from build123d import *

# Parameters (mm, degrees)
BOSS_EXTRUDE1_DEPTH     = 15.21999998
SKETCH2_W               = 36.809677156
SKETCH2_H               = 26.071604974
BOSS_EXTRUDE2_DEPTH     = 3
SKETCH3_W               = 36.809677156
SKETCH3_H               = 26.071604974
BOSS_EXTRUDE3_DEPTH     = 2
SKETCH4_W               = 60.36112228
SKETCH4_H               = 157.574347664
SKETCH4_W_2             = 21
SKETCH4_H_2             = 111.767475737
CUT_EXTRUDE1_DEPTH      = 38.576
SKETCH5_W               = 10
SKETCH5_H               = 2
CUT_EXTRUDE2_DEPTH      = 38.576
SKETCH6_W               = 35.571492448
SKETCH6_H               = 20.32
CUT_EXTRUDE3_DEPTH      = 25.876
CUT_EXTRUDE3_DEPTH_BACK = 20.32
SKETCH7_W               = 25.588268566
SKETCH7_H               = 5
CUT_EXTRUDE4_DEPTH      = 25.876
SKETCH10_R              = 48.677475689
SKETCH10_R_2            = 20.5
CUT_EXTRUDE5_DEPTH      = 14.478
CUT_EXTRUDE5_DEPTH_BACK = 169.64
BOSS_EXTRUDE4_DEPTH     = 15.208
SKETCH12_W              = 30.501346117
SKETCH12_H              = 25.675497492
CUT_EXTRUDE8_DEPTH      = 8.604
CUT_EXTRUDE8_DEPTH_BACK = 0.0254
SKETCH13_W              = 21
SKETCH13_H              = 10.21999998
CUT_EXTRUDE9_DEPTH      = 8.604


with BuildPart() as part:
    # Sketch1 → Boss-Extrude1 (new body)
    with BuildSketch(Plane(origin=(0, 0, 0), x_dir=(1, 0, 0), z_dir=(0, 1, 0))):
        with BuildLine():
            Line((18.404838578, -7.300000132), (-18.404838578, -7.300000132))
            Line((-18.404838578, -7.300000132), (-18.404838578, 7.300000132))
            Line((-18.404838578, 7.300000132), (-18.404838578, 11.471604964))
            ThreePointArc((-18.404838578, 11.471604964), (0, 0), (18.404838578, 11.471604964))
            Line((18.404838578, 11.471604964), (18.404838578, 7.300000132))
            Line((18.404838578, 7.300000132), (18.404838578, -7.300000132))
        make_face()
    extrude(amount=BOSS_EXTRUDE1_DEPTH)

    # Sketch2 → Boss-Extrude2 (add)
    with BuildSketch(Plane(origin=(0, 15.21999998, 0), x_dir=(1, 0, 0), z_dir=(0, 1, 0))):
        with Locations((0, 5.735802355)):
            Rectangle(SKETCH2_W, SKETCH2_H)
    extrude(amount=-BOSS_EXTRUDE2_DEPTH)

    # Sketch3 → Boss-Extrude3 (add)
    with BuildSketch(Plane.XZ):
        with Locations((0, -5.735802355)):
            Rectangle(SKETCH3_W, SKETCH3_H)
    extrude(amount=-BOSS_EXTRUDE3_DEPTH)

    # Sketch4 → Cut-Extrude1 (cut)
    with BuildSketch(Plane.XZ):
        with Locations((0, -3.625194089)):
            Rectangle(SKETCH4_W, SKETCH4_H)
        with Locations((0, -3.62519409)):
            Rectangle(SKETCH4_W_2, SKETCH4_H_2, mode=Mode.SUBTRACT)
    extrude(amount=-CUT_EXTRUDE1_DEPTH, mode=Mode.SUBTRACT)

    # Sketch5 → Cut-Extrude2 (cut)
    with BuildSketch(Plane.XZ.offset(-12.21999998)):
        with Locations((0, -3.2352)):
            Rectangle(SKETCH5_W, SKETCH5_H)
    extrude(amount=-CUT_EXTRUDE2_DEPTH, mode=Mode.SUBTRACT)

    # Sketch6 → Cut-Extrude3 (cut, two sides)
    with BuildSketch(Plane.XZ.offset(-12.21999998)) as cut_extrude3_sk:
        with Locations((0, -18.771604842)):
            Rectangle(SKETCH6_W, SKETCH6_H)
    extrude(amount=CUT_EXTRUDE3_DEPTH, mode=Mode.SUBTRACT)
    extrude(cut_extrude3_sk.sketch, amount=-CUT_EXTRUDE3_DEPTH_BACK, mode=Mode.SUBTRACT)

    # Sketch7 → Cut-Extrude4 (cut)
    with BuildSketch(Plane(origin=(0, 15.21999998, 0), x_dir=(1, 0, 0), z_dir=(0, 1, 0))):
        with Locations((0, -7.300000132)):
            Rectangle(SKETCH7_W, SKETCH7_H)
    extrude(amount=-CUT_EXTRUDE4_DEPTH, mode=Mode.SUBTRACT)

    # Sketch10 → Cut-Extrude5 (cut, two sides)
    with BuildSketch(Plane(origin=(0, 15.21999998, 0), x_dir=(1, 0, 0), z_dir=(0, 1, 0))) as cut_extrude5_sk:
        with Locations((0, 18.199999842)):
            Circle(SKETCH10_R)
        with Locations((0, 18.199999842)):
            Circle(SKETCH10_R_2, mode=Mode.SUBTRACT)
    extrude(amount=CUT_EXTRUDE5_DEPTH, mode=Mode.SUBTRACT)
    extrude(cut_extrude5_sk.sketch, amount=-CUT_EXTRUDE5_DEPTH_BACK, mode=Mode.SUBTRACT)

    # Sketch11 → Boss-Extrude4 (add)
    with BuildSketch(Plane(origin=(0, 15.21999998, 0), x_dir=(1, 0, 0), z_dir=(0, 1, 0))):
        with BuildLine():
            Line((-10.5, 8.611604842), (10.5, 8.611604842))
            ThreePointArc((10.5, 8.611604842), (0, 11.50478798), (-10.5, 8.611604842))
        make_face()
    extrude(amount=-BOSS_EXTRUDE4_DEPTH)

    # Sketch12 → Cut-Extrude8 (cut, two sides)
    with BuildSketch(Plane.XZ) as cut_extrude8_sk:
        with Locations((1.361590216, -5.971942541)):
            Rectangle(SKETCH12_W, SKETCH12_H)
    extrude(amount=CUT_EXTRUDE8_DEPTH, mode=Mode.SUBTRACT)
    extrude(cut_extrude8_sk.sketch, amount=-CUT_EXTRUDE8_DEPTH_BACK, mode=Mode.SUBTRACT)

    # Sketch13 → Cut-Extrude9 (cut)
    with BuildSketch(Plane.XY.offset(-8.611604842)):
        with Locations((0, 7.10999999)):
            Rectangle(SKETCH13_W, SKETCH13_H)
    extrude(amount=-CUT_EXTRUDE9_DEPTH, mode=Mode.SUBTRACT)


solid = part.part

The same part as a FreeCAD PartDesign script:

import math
import FreeCAD as App
import Part
import Sketcher


def add_polygon(sketch, points):
    """Adds a closed chain of lines whose ends are joined by coincident constraints."""
    first, n = sketch.GeometryCount, len(points)
    for a, b in zip(points, points[1:] + points[:1]):
        sketch.addGeometry(Part.LineSegment(App.Vector(*a, 0), App.Vector(*b, 0)), False)
    for i in range(n):
        sketch.addConstraint(Sketcher.Constraint("Coincident", first + i, 2, first + (i + 1) % n, 1))

doc = App.newDocument("Part")
params = doc.addObject("Spreadsheet::Sheet", "Params")
for row, (alias, value) in enumerate([
    ("sketch1_radius", "20.5 mm"),
    ("pad1_length", "15.22 mm"),
    ("pad2_length", "3 mm"),
    ("pad3_length", "2 mm"),
    ("sketch4_width", "21 mm"),
    ("pocket1_length", "38.576 mm"),
    ("sketch5_width", "10 mm"),
    ("sketch5_height", "2 mm"),
    ("pocket2_length", "38.576 mm"),
    ("sketch6_height", "20.32 mm"),
    ("sketch7_height", "5 mm"),
    ("pocket4_length", "25.876 mm"),
    ("sketch8_diameter", "41 mm"),
    ("sketch9_radius", "20.5 mm"),
    ("sketch9_width", "21 mm"),
    ("pad4_length", "15.208 mm"),
    ("pocket6_length", "8.604 mm"),
    ("pocket6_length2", "0.0254 mm"),
    ("sketch11_width", "21 mm"),
    ("sketch11_height", "10.22 mm"),
    ("pocket7_length", "8.604 mm"),
], start=1):
    params.set(f"A{row}", alias)
    params.set(f"B{row}", "=" + value)
    params.setAlias(f"B{row}", alias)

body = doc.addObject("PartDesign::Body", "Body")

# Sketch on XZ plane
sketch1 = body.newObject("Sketcher::SketchObject", "Sketch")
sketch1.AttachmentSupport = (doc.getObject("XZ_Plane"), [""])
sketch1.MapMode = "FlatFace"
sketch1.addGeometry([
    Part.LineSegment(App.Vector(-18, 7, 0), App.Vector(18, 7, 0)),
    Part.LineSegment(App.Vector(18, 7, 0), App.Vector(18, -11, 0)),
    Part.ArcOfCircle(Part.Circle(App.Vector(0, -20, 0), App.Vector(0, 0, 1), 20), math.radians(26), math.radians(154)),
    Part.LineSegment(App.Vector(-18, -11, 0), App.Vector(-18, 7, 0)),
], False)
sketch1.addConstraint([
    Sketcher.Constraint("Coincident", 0, 2, 1, 1),
    Sketcher.Constraint("Coincident", 1, 2, 2, 1),
    Sketcher.Constraint("Coincident", 2, 2, 3, 1),
    Sketcher.Constraint("Coincident", 3, 2, 0, 1),
    Sketcher.Constraint("Horizontal", 0),
    Sketcher.Constraint("Vertical", 1),
    Sketcher.Constraint("Vertical", 3),
    Sketcher.Constraint("Symmetric", 1, 2, 2, 2, -2),
    Sketcher.Constraint("Radius", 2, 20.5),
    Sketcher.Constraint("DistanceY", 2, 3, -1, 1, 20.5),
    Sketcher.Constraint("DistanceY", -1, 1, 0, 2, 7.3),
    Sketcher.Constraint("DistanceX", 0, 1, 0, 2, 36.809677),
])
sketch1.setExpression("Constraints[8]", "Params.sketch1_radius")
pad1 = body.newObject("PartDesign::Pad", "Pad")
pad1.Profile = sketch1
pad1.setExpression("Length", "Params.pad1_length")
pad1.Reversed = True

# Sketch on XZ plane
sketch2 = body.newObject("Sketcher::SketchObject", "Sketch001")
sketch2.AttachmentSupport = (doc.getObject("XZ_Plane"), [""])
sketch2.MapMode = "FlatFace"
sketch2.AttachmentOffset = App.Placement(App.Vector(0, 0, -15.22), App.Rotation())
add_polygon(sketch2, [(-18, -19), (-18, 7), (18, 7), (18, -19)])  # lines 0-3
sketch2.addConstraint([
    Sketcher.Constraint("Vertical", 0),
    Sketcher.Constraint("Horizontal", 1),
    Sketcher.Constraint("Vertical", 2),
    Sketcher.Constraint("Horizontal", 3),
    Sketcher.Constraint("DistanceY", -1, 1, 0, 2, 7.3),
    Sketcher.Constraint("DistanceX", 1, 1, 1, 2, 36.809677),
    Sketcher.Constraint("DistanceY", 0, 1, 0, 2, 26.071605),
    Sketcher.Constraint("DistanceX", 0, 2, -1, 1, 18.404839),
])
pad2 = body.newObject("PartDesign::Pad", "Pad001")
pad2.Profile = sketch2
pad2.setExpression("Length", "Params.pad2_length")

# Sketch on XZ plane
sketch3 = body.newObject("Sketcher::SketchObject", "Sketch002")
sketch3.AttachmentSupport = (doc.getObject("XZ_Plane"), [""])
sketch3.MapMode = "FlatFace"
add_polygon(sketch3, [(-18, 7), (-18, -19), (18, -19), (18, 7)])  # lines 0-3
sketch3.addConstraint([
    Sketcher.Constraint("Vertical", 0),
    Sketcher.Constraint("Horizontal", 1),
    Sketcher.Constraint("Vertical", 2),
    Sketcher.Constraint("Horizontal", 3),
    Sketcher.Constraint("DistanceY", -1, 1, 2, 2, 7.3),
    Sketcher.Constraint("DistanceX", 1, 1, 1, 2, 36.809677),
    Sketcher.Constraint("DistanceY", 0, 2, 0, 1, 26.071605),
    Sketcher.Constraint("DistanceX", 0, 2, -1, 1, 18.404839),
])
pad3 = body.newObject("PartDesign::Pad", "Pad002")
pad3.Profile = sketch3
pad3.setExpression("Length", "Params.pad3_length")
pad3.Reversed = True

# Sketch on XZ plane
sketch4 = body.newObject("Sketcher::SketchObject", "Sketch003")
sketch4.AttachmentSupport = (doc.getObject("XZ_Plane"), [""])
sketch4.MapMode = "FlatFace"
add_polygon(sketch4, [(-30, 75), (-30, -82), (30, -82), (30, 75)])  # lines 0-3
add_polygon(sketch4, [(10, -60), (-10, -60), (-10, 52), (10, 52)])  # lines 4-7
sketch4.addConstraint([
    Sketcher.Constraint("Vertical", 0),
    Sketcher.Constraint("Horizontal", 1),
    Sketcher.Constraint("Vertical", 2),
    Sketcher.Constraint("Horizontal", 3),
    Sketcher.Constraint("Horizontal", 4),
    Sketcher.Constraint("Vertical", 5),
    Sketcher.Constraint("Horizontal", 6),
    Sketcher.Constraint("Vertical", 7),
    Sketcher.Constraint("DistanceX", 4, 2, 4, 1, 21.0),
    Sketcher.Constraint("DistanceX", 4, 2, -1, 1, 10.5),
    Sketcher.Constraint("DistanceX", 1, 1, 1, 2, 60.361122),
    Sketcher.Constraint("DistanceY", 0, 2, 0, 1, 157.574348),
    Sketcher.Constraint("DistanceY", 5, 1, 5, 2, 111.767476),
    Sketcher.Constraint("DistanceX", 0, 2, -1, 1, 30.180561),
    Sketcher.Constraint("DistanceY", -1, 1, 2, 2, 75.16198),
    Sketcher.Constraint("DistanceY", 4, 2, -1, 1, 59.508932),
])
sketch4.setExpression("Constraints[16]", "Params.sketch4_width")
pocket1 = body.newObject("PartDesign::Pocket", "Pocket")
pocket1.Profile = sketch4
pocket1.setExpression("Length", "Params.pocket1_length")

# Sketch on XZ plane
sketch5 = body.newObject("Sketcher::SketchObject", "Sketch004")
sketch5.AttachmentSupport = (doc.getObject("XZ_Plane"), [""])
sketch5.MapMode = "FlatFace"
sketch5.AttachmentOffset = App.Placement(App.Vector(0, 0, -12.22), App.Rotation())
add_polygon(sketch5, [(-5, -2.2), (-5, -4.2), (5, -4.2), (5, -2.2)])  # lines 0-3
sketch5.addConstraint([
    Sketcher.Constraint("Vertical", 0),
    Sketcher.Constraint("Horizontal", 1),
    Sketcher.Constraint("Vertical", 2),
    Sketcher.Constraint("Horizontal", 3),
    Sketcher.Constraint("DistanceX", 1, 1, 1, 2, 10.0),
    Sketcher.Constraint("DistanceY", 0, 2, 0, 1, 2.0),
    Sketcher.Constraint("DistanceX", 0, 2, -1, 1, 5.0),
    Sketcher.Constraint("DistanceY", 0, 2, -1, 1, 4.2352),
])
sketch5.setExpression("Constraints[8]", "Params.sketch5_width")
sketch5.setExpression("Constraints[9]", "Params.sketch5_height")
pocket2 = body.newObject("PartDesign::Pocket", "Pocket001")
pocket2.Profile = sketch5
pocket2.setExpression("Length", "Params.pocket2_length")

# Sketch on XZ plane
sketch6 = body.newObject("Sketcher::SketchObject", "Sketch005")
sketch6.AttachmentSupport = (doc.getObject("XZ_Plane"), [""])
sketch6.MapMode = "FlatFace"
sketch6.AttachmentOffset = App.Placement(App.Vector(0, 0, -12.22), App.Rotation())
add_polygon(sketch6, [(-18, -9), (-18, -29), (18, -29), (18, -9)])  # lines 0-3
sketch6.addConstraint([
    Sketcher.Constraint("Vertical", 0),
    Sketcher.Constraint("Horizontal", 1),
    Sketcher.Constraint("Vertical", 2),
    Sketcher.Constraint("Horizontal", 3),
    Sketcher.Constraint("DistanceY", 0, 2, 0, 1, 20.32),
    Sketcher.Constraint("DistanceX", 1, 1, 1, 2, 35.571492),
    Sketcher.Constraint("DistanceX", 0, 2, -1, 1, 17.785746),
    Sketcher.Constraint("DistanceY", 0, 2, -1, 1, 28.931605),
])
sketch6.setExpression("Constraints[8]", "Params.sketch6_height")
pocket3 = body.newObject("PartDesign::Pocket", "Pocket002")
pocket3.Profile = sketch6
pocket3.Type = "ThroughAll"
pocket3.Midplane = True

# Sketch on XZ plane
sketch7 = body.newObject("Sketcher::SketchObject", "Sketch006")
sketch7.AttachmentSupport = (doc.getObject("XZ_Plane"), [""])
sketch7.MapMode = "FlatFace"
sketch7.AttachmentOffset = App.Placement(App.Vector(0, 0, -15.22), App.Rotation())
add_polygon(sketch7, [(-12.8, 4.8), (-12.8, 9.8), (12.8, 9.8), (12.8, 4.8)])  # lines 0-3
sketch7.addConstraint([
    Sketcher.Constraint("Vertical", 0),
    Sketcher.Constraint("Horizontal", 1),
    Sketcher.Constraint("Vertical", 2),
    Sketcher.Constraint("Horizontal", 3),
    Sketcher.Constraint("DistanceY", 0, 1, 0, 2, 5.0),
    Sketcher.Constraint("DistanceY", -1, 1, 0, 2, 9.8),
    Sketcher.Constraint("DistanceX", 1, 1, 1, 2, 25.588269),
    Sketcher.Constraint("DistanceX", 0, 2, -1, 1, 12.794134),
])
sketch7.setExpression("Constraints[8]", "Params.sketch7_height")
pocket4 = body.newObject("PartDesign::Pocket", "Pocket003")
pocket4.Profile = sketch7
pocket4.setExpression("Length", "Params.pocket4_length")
pocket4.Reversed = True

# Sketch on XZ plane
sketch8 = body.newObject("Sketcher::SketchObject", "Sketch007")
sketch8.AttachmentSupport = (doc.getObject("XZ_Plane"), [""])
sketch8.MapMode = "FlatFace"
sketch8.AttachmentOffset = App.Placement(App.Vector(0, 0, -15.22), App.Rotation())
sketch8.addGeometry([
    Part.Circle(App.Vector(0, -18, 0), App.Vector(0, 0, 1), 49),
    Part.Circle(App.Vector(0, -18, 0), App.Vector(0, 0, 1), 20),
], False)
sketch8.addConstraint([
    Sketcher.Constraint("Coincident", 1, 3, 0, 3),
    Sketcher.Constraint("PointOnObject", 0, 3, -2),
    Sketcher.Constraint("Diameter", 1, 41.0),
    Sketcher.Constraint("DistanceY", 0, 3, -1, 1, 18.2),
    Sketcher.Constraint("Diameter", 0, 97.354951),
])
sketch8.setExpression("Constraints[2]", "Params.sketch8_diameter")
pocket5 = body.newObject("PartDesign::Pocket", "Pocket004")
pocket5.Profile = sketch8
pocket5.Type = "ThroughAll"
pocket5.Midplane = True

# Sketch on XZ plane
sketch9 = body.newObject("Sketcher::SketchObject", "Sketch008")
sketch9.AttachmentSupport = (doc.getObject("XZ_Plane"), [""])
sketch9.MapMode = "FlatFace"
sketch9.AttachmentOffset = App.Placement(App.Vector(0, 0, -15.22), App.Rotation())
sketch9.addGeometry([
    Part.LineSegment(App.Vector(-10, -9, 0), App.Vector(10, -9, 0)),
    Part.ArcOfCircle(Part.Circle(App.Vector(0, 9, 0), App.Vector(0, 0, 1), 21), math.radians(-121), math.radians(-59)),
], False)
sketch9.addConstraint([
    Sketcher.Constraint("Coincident", 0, 1, 1, 1),
    Sketcher.Constraint("Coincident", 1, 2, 0, 2),
    Sketcher.Constraint("Horizontal", 0),
    Sketcher.Constraint("PointOnObject", 1, 3, -2),
    Sketcher.Constraint("Radius", 1, 20.5),
    Sketcher.Constraint("DistanceX", 0, 1, 0, 2, 21.0),
    Sketcher.Constraint("DistanceY", -1, 1, 1, 3, 8.995212),
])
sketch9.setExpression("Constraints[4]", "Params.sketch9_radius")
sketch9.setExpression("Constraints[5]", "Params.sketch9_width")
pad4 = body.newObject("PartDesign::Pad", "Pad003")
pad4.Profile = sketch9
pad4.setExpression("Length", "Params.pad4_length")

# Sketch on XZ plane
sketch10 = body.newObject("Sketcher::SketchObject", "Sketch009")
sketch10.AttachmentSupport = (doc.getObject("XZ_Plane"), [""])
sketch10.MapMode = "FlatFace"
add_polygon(sketch10, [(-14, 7), (-14, -19), (17, -19), (17, 7)])  # lines 0-3
sketch10.addConstraint([
    Sketcher.Constraint("Vertical", 0),
    Sketcher.Constraint("Horizontal", 1),
    Sketcher.Constraint("Vertical", 2),
    Sketcher.Constraint("Horizontal", 3),
    Sketcher.Constraint("DistanceX", 1, 1, 1, 2, 30.501346),
    Sketcher.Constraint("DistanceY", 0, 2, 0, 1, 25.675497),
    Sketcher.Constraint("DistanceY", 0, 2, -1, 1, 18.809691),
    Sketcher.Constraint("DistanceX", 0, 2, -1, 1, 13.889083),
])
pocket6 = body.newObject("PartDesign::Pocket", "Pocket005")
pocket6.Profile = sketch10
pocket6.Type = "TwoLengths"
pocket6.setExpression("Length", "Params.pocket6_length")
pocket6.setExpression("Length2", "Params.pocket6_length2")
pocket6.Reversed = True

# Sketch on XY plane
sketch11 = body.newObject("Sketcher::SketchObject", "Sketch010")
sketch11.AttachmentSupport = (doc.getObject("XY_Plane"), [""])
sketch11.MapMode = "FlatFace"
sketch11.AttachmentOffset = App.Placement(App.Vector(0, 0, -8.611605), App.Rotation())
add_polygon(sketch11, [(-10, 12), (-10, 2), (10, 2), (10, 12)])  # lines 0-3
sketch11.addConstraint([
    Sketcher.Constraint("Vertical", 0),
    Sketcher.Constraint("Horizontal", 1),
    Sketcher.Constraint("Vertical", 2),
    Sketcher.Constraint("Horizontal", 3),
    Sketcher.Constraint("DistanceX", 1, 1, 1, 2, 21.0),
    Sketcher.Constraint("DistanceY", -1, 1, 0, 2, 2.0),
    Sketcher.Constraint("DistanceY", 0, 2, 0, 1, 10.22),
    Sketcher.Constraint("DistanceX", 0, 2, -1, 1, 10.5),
])
sketch11.setExpression("Constraints[8]", "Params.sketch11_width")
sketch11.setExpression("Constraints[10]", "Params.sketch11_height")
pocket7 = body.newObject("PartDesign::Pocket", "Pocket006")
pocket7.Profile = sketch11
pocket7.setExpression("Length", "Params.pocket7_length")

doc.recompute()
